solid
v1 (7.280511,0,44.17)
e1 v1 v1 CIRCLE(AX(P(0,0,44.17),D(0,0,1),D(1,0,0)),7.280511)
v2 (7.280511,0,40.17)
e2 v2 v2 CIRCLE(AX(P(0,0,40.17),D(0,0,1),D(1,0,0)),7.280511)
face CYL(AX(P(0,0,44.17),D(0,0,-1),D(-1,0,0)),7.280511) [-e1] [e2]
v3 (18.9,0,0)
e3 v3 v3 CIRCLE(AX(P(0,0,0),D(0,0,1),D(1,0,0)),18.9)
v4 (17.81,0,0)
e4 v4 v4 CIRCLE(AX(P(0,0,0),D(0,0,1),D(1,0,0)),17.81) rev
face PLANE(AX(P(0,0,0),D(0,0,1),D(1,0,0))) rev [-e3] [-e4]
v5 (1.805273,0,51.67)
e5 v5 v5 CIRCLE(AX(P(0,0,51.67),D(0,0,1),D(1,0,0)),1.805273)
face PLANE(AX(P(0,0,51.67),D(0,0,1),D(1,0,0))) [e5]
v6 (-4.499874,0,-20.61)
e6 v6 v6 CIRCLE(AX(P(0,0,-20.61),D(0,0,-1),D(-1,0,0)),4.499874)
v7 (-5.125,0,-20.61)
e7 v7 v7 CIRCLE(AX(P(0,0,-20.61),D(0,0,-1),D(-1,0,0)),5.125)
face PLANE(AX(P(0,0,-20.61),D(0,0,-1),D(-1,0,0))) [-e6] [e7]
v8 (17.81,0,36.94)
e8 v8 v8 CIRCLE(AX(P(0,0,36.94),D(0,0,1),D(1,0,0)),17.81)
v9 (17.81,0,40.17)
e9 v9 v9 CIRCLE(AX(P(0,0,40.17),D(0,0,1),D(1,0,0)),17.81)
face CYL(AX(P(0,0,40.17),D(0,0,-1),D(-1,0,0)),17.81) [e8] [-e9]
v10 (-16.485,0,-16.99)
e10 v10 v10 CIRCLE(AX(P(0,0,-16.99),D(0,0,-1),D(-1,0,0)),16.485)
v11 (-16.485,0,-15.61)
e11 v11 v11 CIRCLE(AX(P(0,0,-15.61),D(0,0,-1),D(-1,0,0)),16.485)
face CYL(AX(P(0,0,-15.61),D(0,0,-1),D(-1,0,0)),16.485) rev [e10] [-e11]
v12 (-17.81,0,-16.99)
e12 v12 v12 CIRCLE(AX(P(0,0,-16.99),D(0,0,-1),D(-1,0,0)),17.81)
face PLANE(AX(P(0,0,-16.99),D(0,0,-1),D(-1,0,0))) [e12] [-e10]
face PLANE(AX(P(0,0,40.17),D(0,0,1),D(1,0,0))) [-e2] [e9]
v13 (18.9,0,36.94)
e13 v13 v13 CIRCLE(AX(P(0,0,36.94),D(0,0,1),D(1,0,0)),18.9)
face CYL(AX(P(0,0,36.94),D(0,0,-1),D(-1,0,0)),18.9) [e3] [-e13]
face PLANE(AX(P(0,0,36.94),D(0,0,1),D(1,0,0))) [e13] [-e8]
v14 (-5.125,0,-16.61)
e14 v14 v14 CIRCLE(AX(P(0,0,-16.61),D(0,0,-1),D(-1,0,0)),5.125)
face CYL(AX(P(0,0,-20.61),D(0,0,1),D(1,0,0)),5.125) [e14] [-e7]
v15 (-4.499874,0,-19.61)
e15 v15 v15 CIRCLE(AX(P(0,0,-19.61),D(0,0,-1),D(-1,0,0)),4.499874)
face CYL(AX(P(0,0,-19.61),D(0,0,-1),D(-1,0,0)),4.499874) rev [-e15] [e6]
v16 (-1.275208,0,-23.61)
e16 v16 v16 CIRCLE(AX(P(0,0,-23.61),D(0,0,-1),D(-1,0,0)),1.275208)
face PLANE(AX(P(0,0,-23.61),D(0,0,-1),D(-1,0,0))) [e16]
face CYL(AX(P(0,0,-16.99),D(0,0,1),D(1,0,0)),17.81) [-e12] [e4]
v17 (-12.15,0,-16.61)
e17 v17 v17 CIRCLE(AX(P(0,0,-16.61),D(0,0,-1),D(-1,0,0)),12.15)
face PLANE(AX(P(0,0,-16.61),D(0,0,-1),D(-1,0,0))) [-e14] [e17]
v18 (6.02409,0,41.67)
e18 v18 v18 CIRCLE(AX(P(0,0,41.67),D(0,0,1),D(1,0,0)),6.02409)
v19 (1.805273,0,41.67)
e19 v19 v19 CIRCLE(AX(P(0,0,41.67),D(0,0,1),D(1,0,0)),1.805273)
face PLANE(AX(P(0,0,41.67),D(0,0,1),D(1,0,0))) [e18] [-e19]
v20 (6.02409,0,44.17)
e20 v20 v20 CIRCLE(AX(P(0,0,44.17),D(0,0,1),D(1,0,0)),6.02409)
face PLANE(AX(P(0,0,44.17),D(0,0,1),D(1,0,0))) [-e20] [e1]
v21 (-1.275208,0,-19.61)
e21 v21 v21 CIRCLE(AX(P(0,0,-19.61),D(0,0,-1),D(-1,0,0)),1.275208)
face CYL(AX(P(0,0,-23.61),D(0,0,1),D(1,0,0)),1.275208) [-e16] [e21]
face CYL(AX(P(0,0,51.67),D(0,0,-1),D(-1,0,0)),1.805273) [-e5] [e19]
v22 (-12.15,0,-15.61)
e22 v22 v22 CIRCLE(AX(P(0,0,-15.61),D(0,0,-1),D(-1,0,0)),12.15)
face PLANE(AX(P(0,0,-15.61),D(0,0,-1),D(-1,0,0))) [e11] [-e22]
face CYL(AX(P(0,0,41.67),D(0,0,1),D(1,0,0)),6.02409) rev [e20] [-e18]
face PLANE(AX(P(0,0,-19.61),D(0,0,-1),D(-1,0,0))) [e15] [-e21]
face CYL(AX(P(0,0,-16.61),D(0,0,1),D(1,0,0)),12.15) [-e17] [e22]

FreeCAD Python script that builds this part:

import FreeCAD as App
import Part
import Sketcher

doc = App.newDocument("Part")
body = doc.addObject("PartDesign::Body", "Body")

# Sketch on XY plane
sketch1 = body.newObject("Sketcher::SketchObject", "Sketch")
sketch1.AttachmentSupport = (doc.getObject("XY_Plane"), [""])
sketch1.MapMode = "FlatFace"
sketch1.addGeometry(Part.Circle(App.Vector(0, 0, 0), App.Vector(0, 0, 1), 18.9), False)
sketch1.addConstraint([
    Sketcher.Constraint("Coincident", 0, 3, -1, 1),
    Sketcher.Constraint("Diameter", 0, 37.8),
])
pad1 = body.newObject("PartDesign::Pad", "Pad")
pad1.Profile = sketch1
pad1.Length = 36.94

# Sketch on XY plane
sketch2 = body.newObject("Sketcher::SketchObject", "Sketch001")
sketch2.AttachmentSupport = (doc.getObject("XY_Plane"), [""])
sketch2.MapMode = "FlatFace"
sketch2.AttachmentOffset = App.Placement(App.Vector(0, 0, 36.94), App.Rotation())
sketch2.addGeometry(Part.Circle(App.Vector(0, 0, 0), App.Vector(0, 0, 1), 17.81), False)
sketch2.addConstraint([
    Sketcher.Constraint("Coincident", 0, 3, -1, 1),
    Sketcher.Constraint("Diameter", 0, 35.62),
])
pad2 = body.newObject("PartDesign::Pad", "Pad001")
pad2.Profile = sketch2
pad2.Length = 3.23

# Sketch on XY plane
sketch3 = body.newObject("Sketcher::SketchObject", "Sketch002")
sketch3.AttachmentSupport = (doc.getObject("XY_Plane"), [""])
sketch3.MapMode = "FlatFace"
sketch3.AttachmentOffset = App.Placement(App.Vector(0, 0, -16.99), App.Rotation())
sketch3.addGeometry(Part.Circle(App.Vector(0, 0, 0), App.Vector(0, 0, 1), 17.81), False)
sketch3.addConstraint([
    Sketcher.Constraint("Coincident", 0, 3, -1, 1),
    Sketcher.Constraint("Diameter", 0, 35.62),
])
pad3 = body.newObject("PartDesign::Pad", "Pad002")
pad3.Profile = sketch3
pad3.Length = 16.99

# Sketch on XY plane
sketch4 = body.newObject("Sketcher::SketchObject", "Sketch003")
sketch4.AttachmentSupport = (doc.getObject("XY_Plane"), [""])
sketch4.MapMode = "FlatFace"
sketch4.AttachmentOffset = App.Placement(App.Vector(0, 0, -16.99), App.Rotation())
sketch4.addGeometry(Part.Circle(App.Vector(0, 0, 0), App.Vector(0, 0, 1), 16.485), False)
sketch4.addConstraint([
    Sketcher.Constraint("Coincident", 0, 3, -1, 1),
    Sketcher.Constraint("Diameter", 0, 32.97),
])
pocket1 = body.newObject("PartDesign::Pocket", "Pocket")
pocket1.Profile = sketch4
pocket1.Length = 1.38
pocket1.Reversed = True

# Sketch on XY plane
sketch5 = body.newObject("Sketcher::SketchObject", "Sketch004")
sketch5.AttachmentSupport = (doc.getObject("XY_Plane"), [""])
sketch5.MapMode = "FlatFace"
sketch5.AttachmentOffset = App.Placement(App.Vector(0, 0, -15.61), App.Rotation())
sketch5.addGeometry(Part.Circle(App.Vector(0, 0, 0), App.Vector(0, 0, 1), 12.15), False)
sketch5.addConstraint([
    Sketcher.Constraint("Coincident", 0, 3, -1, 1),
    Sketcher.Constraint("Diameter", 0, 24.3),
])
pad4 = body.newObject("PartDesign::Pad", "Pad003")
pad4.Profile = sketch5
pad4.Length = 1
pad4.Reversed = True

# Sketch on XY plane
sketch6 = body.newObject("Sketcher::SketchObject", "Sketch005")
sketch6.AttachmentSupport = (doc.getObject("XY_Plane"), [""])
sketch6.MapMode = "FlatFace"
sketch6.AttachmentOffset = App.Placement(App.Vector(0, 0, -16.61), App.Rotation())
sketch6.addGeometry(Part.Circle(App.Vector(0, 0, 0), App.Vector(0, 0, 1), 5.125), False)
sketch6.addConstraint([
    Sketcher.Constraint("Coincident", 0, 3, -1, 1),
    Sketcher.Constraint("Diameter", 0, 10.25),
])
pad5 = body.newObject("PartDesign::Pad", "Pad004")
pad5.Profile = sketch6
pad5.Length = 4
pad5.Reversed = True

# Sketch on XY plane
sketch7 = body.newObject("Sketcher::SketchObject", "Sketch006")
sketch7.AttachmentSupport = (doc.getObject("XY_Plane"), [""])
sketch7.MapMode = "FlatFace"
sketch7.AttachmentOffset = App.Placement(App.Vector(0, 0, -20.61), App.Rotation())
sketch7.addGeometry(Part.Circle(App.Vector(0, 0, 0), App.Vector(0, 0, 1), 4.499874), False)
sketch7.addConstraint([
    Sketcher.Constraint("Coincident", 0, 3, -1, 1),
    Sketcher.Constraint("Diameter", 0, 8.999749),
])
pocket2 = body.newObject("PartDesign::Pocket", "Pocket001")
pocket2.Profile = sketch7
pocket2.Length = 1
pocket2.Reversed = True

# Sketch on XY plane
sketch8 = body.newObject("Sketcher::SketchObject", "Sketch007")
sketch8.AttachmentSupport = (doc.getObject("XY_Plane"), [""])
sketch8.MapMode = "FlatFace"
sketch8.AttachmentOffset = App.Placement(App.Vector(0, 0, -19.61), App.Rotation())
sketch8.addGeometry(Part.Circle(App.Vector(0, 0, 0), App.Vector(0, 0, 1), 1.275208), False)
sketch8.addConstraint([
    Sketcher.Constraint("Coincident", 0, 3, -1, 1),
    Sketcher.Constraint("Diameter", 0, 2.550415),
])
pad6 = body.newObject("PartDesign::Pad", "Pad005")
pad6.Profile = sketch8
pad6.Length = 4
pad6.Reversed = True

# Sketch on XY plane
sketch9 = body.newObject("Sketcher::SketchObject", "Sketch008")
sketch9.AttachmentSupport = (doc.getObject("XY_Plane"), [""])
sketch9.MapMode = "FlatFace"
sketch9.AttachmentOffset = App.Placement(App.Vector(0, 0, 40.17), App.Rotation())
sketch9.addGeometry(Part.Circle(App.Vector(0, 0, 0), App.Vector(0, 0, 1), 7.280511), False)
sketch9.addConstraint([
    Sketcher.Constraint("Coincident", 0, 3, -1, 1),
    Sketcher.Constraint("Diameter", 0, 14.561022),
])
pad7 = body.newObject("PartDesign::Pad", "Pad006")
pad7.Profile = sketch9
pad7.Length = 4

# Sketch on XY plane
sketch10 = body.newObject("Sketcher::SketchObject", "Sketch009")
sketch10.AttachmentSupport = (doc.getObject("XY_Plane"), [""])
sketch10.MapMode = "FlatFace"
sketch10.AttachmentOffset = App.Placement(App.Vector(0, 0, 44.17), App.Rotation())
sketch10.addGeometry(Part.Circle(App.Vector(0, 0, 0), App.Vector(0, 0, 1), 6.02409), False)
sketch10.addConstraint([
    Sketcher.Constraint("Coincident", 0, 3, -1, 1),
    Sketcher.Constraint("Diameter", 0, 12.04818),
])
pocket3 = body.newObject("PartDesign::Pocket", "Pocket002")
pocket3.Profile = sketch10
pocket3.Length = 2.5

# Sketch on XY plane
sketch11 = body.newObject("Sketcher::SketchObject", "Sketch010")
sketch11.AttachmentSupport = (doc.getObject("XY_Plane"), [""])
sketch11.MapMode = "FlatFace"
sketch11.AttachmentOffset = App.Placement(App.Vector(0, 0, 41.67), App.Rotation())
sketch11.addGeometry(Part.Circle(App.Vector(0, 0, 0), App.Vector(0, 0, 1), 1.805273), False)
sketch11.addConstraint([
    Sketcher.Constraint("Coincident", 0, 3, -1, 1),
    Sketcher.Constraint("Diameter", 0, 3.610546),
])
pad8 = body.newObject("PartDesign::Pad", "Pad007")
pad8.Profile = sketch11
pad8.Length = 10

doc.recompute()
